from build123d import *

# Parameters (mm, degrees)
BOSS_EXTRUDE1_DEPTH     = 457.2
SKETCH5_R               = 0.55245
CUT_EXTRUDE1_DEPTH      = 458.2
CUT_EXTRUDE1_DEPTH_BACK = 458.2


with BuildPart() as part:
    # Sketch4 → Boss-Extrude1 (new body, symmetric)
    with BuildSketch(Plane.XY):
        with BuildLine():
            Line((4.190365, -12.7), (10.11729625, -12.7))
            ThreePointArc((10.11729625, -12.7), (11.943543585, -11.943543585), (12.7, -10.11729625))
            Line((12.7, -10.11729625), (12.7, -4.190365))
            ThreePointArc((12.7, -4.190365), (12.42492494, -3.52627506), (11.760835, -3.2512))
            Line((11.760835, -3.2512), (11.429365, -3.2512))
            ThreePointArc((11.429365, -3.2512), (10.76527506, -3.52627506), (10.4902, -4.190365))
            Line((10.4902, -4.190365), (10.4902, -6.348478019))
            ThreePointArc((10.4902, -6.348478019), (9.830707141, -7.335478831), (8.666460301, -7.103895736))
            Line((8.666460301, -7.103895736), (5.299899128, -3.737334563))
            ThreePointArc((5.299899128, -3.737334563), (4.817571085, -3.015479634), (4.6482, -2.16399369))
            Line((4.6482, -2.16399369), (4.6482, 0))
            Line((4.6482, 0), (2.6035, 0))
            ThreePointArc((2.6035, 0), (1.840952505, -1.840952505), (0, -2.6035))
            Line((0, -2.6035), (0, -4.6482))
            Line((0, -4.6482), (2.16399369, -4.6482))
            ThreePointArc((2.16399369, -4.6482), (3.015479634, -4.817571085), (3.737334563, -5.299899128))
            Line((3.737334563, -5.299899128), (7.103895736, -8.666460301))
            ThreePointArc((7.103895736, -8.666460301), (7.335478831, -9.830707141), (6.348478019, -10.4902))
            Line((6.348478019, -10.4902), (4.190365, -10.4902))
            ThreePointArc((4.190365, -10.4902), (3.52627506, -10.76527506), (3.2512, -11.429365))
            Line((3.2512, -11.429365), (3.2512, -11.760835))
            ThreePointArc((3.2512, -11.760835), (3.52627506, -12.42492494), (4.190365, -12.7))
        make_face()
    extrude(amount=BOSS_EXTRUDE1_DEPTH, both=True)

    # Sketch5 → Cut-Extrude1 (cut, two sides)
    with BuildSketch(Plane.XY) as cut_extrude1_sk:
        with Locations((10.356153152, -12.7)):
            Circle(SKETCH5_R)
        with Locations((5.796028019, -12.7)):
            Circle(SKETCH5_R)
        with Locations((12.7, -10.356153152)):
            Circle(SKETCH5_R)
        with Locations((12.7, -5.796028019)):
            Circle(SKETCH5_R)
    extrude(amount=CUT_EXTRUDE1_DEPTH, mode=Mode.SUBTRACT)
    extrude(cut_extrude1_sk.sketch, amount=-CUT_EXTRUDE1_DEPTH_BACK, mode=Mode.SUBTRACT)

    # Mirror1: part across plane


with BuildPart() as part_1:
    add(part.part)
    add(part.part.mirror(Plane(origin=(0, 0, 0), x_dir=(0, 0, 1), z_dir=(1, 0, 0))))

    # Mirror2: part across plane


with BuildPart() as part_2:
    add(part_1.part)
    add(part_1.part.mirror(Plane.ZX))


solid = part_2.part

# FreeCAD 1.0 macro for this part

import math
import FreeCAD as App
import Part
import Sketcher

V = App.Vector
Q = App.Units.Quantity

doc = App.newDocument("Part")
body = doc.addObject("PartDesign::Body", "Body")

sketch1 = body.newObject("Sketcher::SketchObject", "Sketch")
sketch1.AttachmentSupport = (doc.getObject("XY_Plane"), [""])
sketch1.MapMode = "FlatFace"
sketch1.addGeometry([
    Part.LineSegment(V(4.190365, -12.7, 0), V(10.117296, -12.7, 0)),
    Part.ArcOfCircle(Part.Circle(V(10.117296, -10.117296, 0), V(0, 0, 1), 2.582704), math.radians(-90), math.radians(0)),
    Part.LineSegment(V(12.7, -10.117296, 0), V(12.7, -4.190365, 0)),
    Part.ArcOfCircle(Part.Circle(V(11.760835, -4.190365, 0), V(0, 0, 1), 0.939165), math.radians(0), math.radians(90)),
    Part.LineSegment(V(11.760835, -3.2512, 0), V(11.429365, -3.2512, 0)),
    Part.ArcOfCircle(Part.Circle(V(11.429365, -4.190365, 0), V(0, 0, 1), 0.939165), math.radians(90), math.radians(180)),
    Part.LineSegment(V(10.4902, -4.190365, 0), V(10.4902, -6.348478, 0)),
    Part.ArcOfCircle(Part.Circle(V(9.421878, -6.348478, 0), V(0, 0, 1), 1.068322), math.radians(-135), math.radians(0)),
    Part.LineSegment(V(8.66646, -7.103896, 0), V(5.299899, -3.737335, 0)),
    Part.ArcOfCircle(Part.Circle(V(6.87324, -2.163994, 0), V(0, 0, 1), 2.22504), math.radians(-180), math.radians(-135)),
    Part.LineSegment(V(4.6482, -2.163994, 0), V(4.6482, 0, 0)),
    Part.LineSegment(V(4.6482, 0, 0), V(2.6035, 0, 0)),
    Part.ArcOfCircle(Part.Circle(V(0, 0, 0), V(0, 0, 1), 2.6035), math.radians(-90), math.radians(0)),
    Part.LineSegment(V(0, -2.6035, 0), V(0, -4.6482, 0)),
    Part.LineSegment(V(0, -4.6482, 0), V(2.163994, -4.6482, 0)),
    Part.ArcOfCircle(Part.Circle(V(2.163994, -6.87324, 0), V(0, 0, 1), 2.22504), math.radians(45), math.radians(90)),
    Part.LineSegment(V(3.737335, -5.299899, 0), V(7.103896, -8.66646, 0)),
    Part.ArcOfCircle(Part.Circle(V(6.348478, -9.421878, 0), V(0, 0, 1), 1.068322), math.radians(-90), math.radians(45)),
    Part.LineSegment(V(6.348478, -10.4902, 0), V(4.190365, -10.4902, 0)),
    Part.ArcOfCircle(Part.Circle(V(4.190365, -11.429365, 0), V(0, 0, 1), 0.939165), math.radians(90), math.radians(180)),
    Part.LineSegment(V(3.2512, -11.429365, 0), V(3.2512, -11.760835, 0)),
    Part.ArcOfCircle(Part.Circle(V(4.190365, -11.760835, 0), V(0, 0, 1), 0.939165), math.radians(-180), math.radians(-90)),
], False)
sketch1.addConstraint([
    Sketcher.Constraint("Tangent", 0, 2, 1, 1),
    Sketcher.Constraint("Tangent", 1, 2, 2, 1),
    Sketcher.Constraint("Tangent", 2, 2, 3, 1),
    Sketcher.Constraint("Tangent", 3, 2, 4, 1),
    Sketcher.Constraint("Tangent", 4, 2, 5, 1),
    Sketcher.Constraint("Tangent", 5, 2, 6, 1),
    Sketcher.Constraint("Tangent", 6, 2, 7, 2),
    Sketcher.Constraint("Tangent", 7, 1, 8, 1),
    Sketcher.Constraint("Tangent", 8, 2, 9, 2),
    Sketcher.Constraint("Tangent", 9, 1, 10, 1),
    Sketcher.Constraint("Coincident", 10, 2, 11, 1),
    Sketcher.Constraint("Coincident", 11, 2, 12, 2),
    Sketcher.Constraint("Coincident", 12, 1, 13, 1),
    Sketcher.Constraint("Coincident", 13, 2, 14, 1),
    Sketcher.Constraint("Tangent", 14, 2, 15, 2),
    Sketcher.Constraint("Tangent", 15, 1, 16, 1),
    Sketcher.Constraint("Tangent", 16, 2, 17, 2),
    Sketcher.Constraint("Tangent", 17, 1, 18, 1),
    Sketcher.Constraint("Tangent", 18, 2, 19, 1),
    Sketcher.Constraint("Tangent", 19, 2, 20, 1),
    Sketcher.Constraint("Tangent", 20, 2, 21, 1),
    Sketcher.Constraint("Tangent", 21, 2, 0, 1),
    Sketcher.Constraint("Horizontal", 0),
    Sketcher.Constraint("Vertical", 2),
    Sketcher.Constraint("Horizontal", 4),
    Sketcher.Constraint("Vertical", 6),
    Sketcher.Constraint("Vertical", 10),
    Sketcher.Constraint("Horizontal", 11),
    Sketcher.Constraint("Vertical", 13),
    Sketcher.Constraint("Horizontal", 14),
    Sketcher.Constraint("Horizontal", 18),
    Sketcher.Constraint("Vertical", 20),
    Sketcher.Constraint("Coincident", 12, 3, -1, 1),
    Sketcher.Constraint("Equal", 3, 5),
    Sketcher.Constraint("Equal", 9, 15),
    Sketcher.Constraint("Equal", 7, 17),
    Sketcher.Constraint("Equal", 5, 19),
    Sketcher.Constraint("Equal", 19, 21),
    Sketcher.Constraint("PointOnObject", 10, 2, -1),
    Sketcher.Constraint("PointOnObject", 12, 1, -2),
    Sketcher.Constraint("Parallel", 8, 16),
    Sketcher.Constraint("Equal", 0, 2),
    Sketcher.Constraint("Equal", 18, 6),
    Sketcher.Constraint("Equal", 14, 10),
    Sketcher.Constraint("Equal", 11, 13),
    Sketcher.Constraint("Equal", 4, 20),
    Sketcher.Constraint("Equal", 8, 16),
    Sketcher.Constraint("DistanceY", 0, 2, -1, 1, Q("0.5 in")),
    Sketcher.Constraint("Radius", 9, Q("0.0876 in")),
    Sketcher.Constraint("Radius", 12, Q("0.1025 in")),
    Sketcher.Constraint("DistanceX", 9, 1, 5, 2, Q("0.23 in")),
    Sketcher.Constraint("DistanceX", 11, 2, 11, 1, Q("0.0805 in")),
    Sketcher.Constraint("DistanceY", 3, 2, -1, 1, Q("0.128 in")),
    Sketcher.Constraint("Radius", 7, Q("1.068322 mm")),
    Sketcher.Constraint("DistanceX", 17, 3, 7, 3, Q("0.121 in")),
    Sketcher.Constraint("Radius", 1, Q("2.582704 mm")),
    Sketcher.Constraint("Radius", 3, Q("0.939165 mm")),
])
pad1 = body.newObject("PartDesign::Pad", "Pad")
pad1.Profile = sketch1
pad1.Length = Q("36 in")
pad1.Midplane = True

sketch2 = body.newObject("Sketcher::SketchObject", "Sketch001")
sketch2.AttachmentSupport = (doc.getObject("XY_Plane"), [""])
sketch2.MapMode = "FlatFace"
sketch2.addGeometry([
    Part.Circle(V(10.356153, -12.7, 0), V(0, 0, 1), 0.55245),
    Part.Circle(V(5.796028, -12.7, 0), V(0, 0, 1), 0.55245),
    Part.Circle(V(12.7, -10.356153, 0), V(0, 0, 1), 0.55245),
    Part.Circle(V(12.7, -5.796028, 0), V(0, 0, 1), 0.55245),
], False)
sketch2.addConstraint([
    Sketcher.Constraint("Equal", 0, 1),
    Sketcher.Constraint("Equal", 1, 2),
    Sketcher.Constraint("Equal", 2, 3),
    Sketcher.Constraint("Horizontal", 0, 3, 1, 3),
    Sketcher.Constraint("Vertical", 2, 3, 3, 3),
    Sketcher.Constraint("Diameter", 0, Q("0.0435 in")),
    Sketcher.Constraint("DistanceY", 0, 3, -1, 1, Q("0.5 in")),
    Sketcher.Constraint("DistanceX", -1, 1, 2, 3, Q("0.5 in")),
    Sketcher.Constraint("DistanceX", -1, 1, 1, 3, Q("5.796028 mm")),
    Sketcher.Constraint("DistanceY", 3, 3, -1, 1, Q("5.796028 mm")),
    Sketcher.Constraint("DistanceX", -1, 1, 0, 3, Q("10.356153 mm")),
    Sketcher.Constraint("DistanceY", 2, 3, -1, 1, Q("10.356153 mm")),
])
pocket1 = body.newObject("PartDesign::Pocket", "Pocket")
pocket1.Profile = sketch2
pocket1.Type = "ThroughAll"
pocket1.Midplane = True
body2 = doc.addObject("PartDesign::Body", "Body001")
doc.recompute()

body2.BaseFeature = body
doc.recompute()

mirroring = doc.addObject("Part::Mirroring", "Mirroring")
mirroring.Source = body
mirroring.Base = V(0, 0, 0)
mirroring.Normal = V(1, 0, 0)
body3 = doc.addObject("PartDesign::Body", "Body002")
body3.BaseFeature = mirroring
boolean = body2.newObject("PartDesign::Boolean", "Boolean")
boolean.Type = "Fuse"
boolean.addObjects([body3])
doc.recompute()
body4 = doc.addObject("PartDesign::Body", "Body003")
doc.recompute()

body4.BaseFeature = body2
doc.recompute()

mirroring2 = doc.addObject("Part::Mirroring", "Mirroring001")
mirroring2.Source = body2
mirroring2.Base = V(0, 0, 0)
mirroring2.Normal = V(0, 1, 0)
body5 = doc.addObject("PartDesign::Body", "Body004")
body5.BaseFeature = mirroring2
boolean2 = body4.newObject("PartDesign::Boolean", "Boolean001")
boolean2.Type = "Fuse"
boolean2.addObjects([body5])
doc.recompute()
mirroring.Visibility = False
mirroring2.Visibility = False

doc.recompute()
